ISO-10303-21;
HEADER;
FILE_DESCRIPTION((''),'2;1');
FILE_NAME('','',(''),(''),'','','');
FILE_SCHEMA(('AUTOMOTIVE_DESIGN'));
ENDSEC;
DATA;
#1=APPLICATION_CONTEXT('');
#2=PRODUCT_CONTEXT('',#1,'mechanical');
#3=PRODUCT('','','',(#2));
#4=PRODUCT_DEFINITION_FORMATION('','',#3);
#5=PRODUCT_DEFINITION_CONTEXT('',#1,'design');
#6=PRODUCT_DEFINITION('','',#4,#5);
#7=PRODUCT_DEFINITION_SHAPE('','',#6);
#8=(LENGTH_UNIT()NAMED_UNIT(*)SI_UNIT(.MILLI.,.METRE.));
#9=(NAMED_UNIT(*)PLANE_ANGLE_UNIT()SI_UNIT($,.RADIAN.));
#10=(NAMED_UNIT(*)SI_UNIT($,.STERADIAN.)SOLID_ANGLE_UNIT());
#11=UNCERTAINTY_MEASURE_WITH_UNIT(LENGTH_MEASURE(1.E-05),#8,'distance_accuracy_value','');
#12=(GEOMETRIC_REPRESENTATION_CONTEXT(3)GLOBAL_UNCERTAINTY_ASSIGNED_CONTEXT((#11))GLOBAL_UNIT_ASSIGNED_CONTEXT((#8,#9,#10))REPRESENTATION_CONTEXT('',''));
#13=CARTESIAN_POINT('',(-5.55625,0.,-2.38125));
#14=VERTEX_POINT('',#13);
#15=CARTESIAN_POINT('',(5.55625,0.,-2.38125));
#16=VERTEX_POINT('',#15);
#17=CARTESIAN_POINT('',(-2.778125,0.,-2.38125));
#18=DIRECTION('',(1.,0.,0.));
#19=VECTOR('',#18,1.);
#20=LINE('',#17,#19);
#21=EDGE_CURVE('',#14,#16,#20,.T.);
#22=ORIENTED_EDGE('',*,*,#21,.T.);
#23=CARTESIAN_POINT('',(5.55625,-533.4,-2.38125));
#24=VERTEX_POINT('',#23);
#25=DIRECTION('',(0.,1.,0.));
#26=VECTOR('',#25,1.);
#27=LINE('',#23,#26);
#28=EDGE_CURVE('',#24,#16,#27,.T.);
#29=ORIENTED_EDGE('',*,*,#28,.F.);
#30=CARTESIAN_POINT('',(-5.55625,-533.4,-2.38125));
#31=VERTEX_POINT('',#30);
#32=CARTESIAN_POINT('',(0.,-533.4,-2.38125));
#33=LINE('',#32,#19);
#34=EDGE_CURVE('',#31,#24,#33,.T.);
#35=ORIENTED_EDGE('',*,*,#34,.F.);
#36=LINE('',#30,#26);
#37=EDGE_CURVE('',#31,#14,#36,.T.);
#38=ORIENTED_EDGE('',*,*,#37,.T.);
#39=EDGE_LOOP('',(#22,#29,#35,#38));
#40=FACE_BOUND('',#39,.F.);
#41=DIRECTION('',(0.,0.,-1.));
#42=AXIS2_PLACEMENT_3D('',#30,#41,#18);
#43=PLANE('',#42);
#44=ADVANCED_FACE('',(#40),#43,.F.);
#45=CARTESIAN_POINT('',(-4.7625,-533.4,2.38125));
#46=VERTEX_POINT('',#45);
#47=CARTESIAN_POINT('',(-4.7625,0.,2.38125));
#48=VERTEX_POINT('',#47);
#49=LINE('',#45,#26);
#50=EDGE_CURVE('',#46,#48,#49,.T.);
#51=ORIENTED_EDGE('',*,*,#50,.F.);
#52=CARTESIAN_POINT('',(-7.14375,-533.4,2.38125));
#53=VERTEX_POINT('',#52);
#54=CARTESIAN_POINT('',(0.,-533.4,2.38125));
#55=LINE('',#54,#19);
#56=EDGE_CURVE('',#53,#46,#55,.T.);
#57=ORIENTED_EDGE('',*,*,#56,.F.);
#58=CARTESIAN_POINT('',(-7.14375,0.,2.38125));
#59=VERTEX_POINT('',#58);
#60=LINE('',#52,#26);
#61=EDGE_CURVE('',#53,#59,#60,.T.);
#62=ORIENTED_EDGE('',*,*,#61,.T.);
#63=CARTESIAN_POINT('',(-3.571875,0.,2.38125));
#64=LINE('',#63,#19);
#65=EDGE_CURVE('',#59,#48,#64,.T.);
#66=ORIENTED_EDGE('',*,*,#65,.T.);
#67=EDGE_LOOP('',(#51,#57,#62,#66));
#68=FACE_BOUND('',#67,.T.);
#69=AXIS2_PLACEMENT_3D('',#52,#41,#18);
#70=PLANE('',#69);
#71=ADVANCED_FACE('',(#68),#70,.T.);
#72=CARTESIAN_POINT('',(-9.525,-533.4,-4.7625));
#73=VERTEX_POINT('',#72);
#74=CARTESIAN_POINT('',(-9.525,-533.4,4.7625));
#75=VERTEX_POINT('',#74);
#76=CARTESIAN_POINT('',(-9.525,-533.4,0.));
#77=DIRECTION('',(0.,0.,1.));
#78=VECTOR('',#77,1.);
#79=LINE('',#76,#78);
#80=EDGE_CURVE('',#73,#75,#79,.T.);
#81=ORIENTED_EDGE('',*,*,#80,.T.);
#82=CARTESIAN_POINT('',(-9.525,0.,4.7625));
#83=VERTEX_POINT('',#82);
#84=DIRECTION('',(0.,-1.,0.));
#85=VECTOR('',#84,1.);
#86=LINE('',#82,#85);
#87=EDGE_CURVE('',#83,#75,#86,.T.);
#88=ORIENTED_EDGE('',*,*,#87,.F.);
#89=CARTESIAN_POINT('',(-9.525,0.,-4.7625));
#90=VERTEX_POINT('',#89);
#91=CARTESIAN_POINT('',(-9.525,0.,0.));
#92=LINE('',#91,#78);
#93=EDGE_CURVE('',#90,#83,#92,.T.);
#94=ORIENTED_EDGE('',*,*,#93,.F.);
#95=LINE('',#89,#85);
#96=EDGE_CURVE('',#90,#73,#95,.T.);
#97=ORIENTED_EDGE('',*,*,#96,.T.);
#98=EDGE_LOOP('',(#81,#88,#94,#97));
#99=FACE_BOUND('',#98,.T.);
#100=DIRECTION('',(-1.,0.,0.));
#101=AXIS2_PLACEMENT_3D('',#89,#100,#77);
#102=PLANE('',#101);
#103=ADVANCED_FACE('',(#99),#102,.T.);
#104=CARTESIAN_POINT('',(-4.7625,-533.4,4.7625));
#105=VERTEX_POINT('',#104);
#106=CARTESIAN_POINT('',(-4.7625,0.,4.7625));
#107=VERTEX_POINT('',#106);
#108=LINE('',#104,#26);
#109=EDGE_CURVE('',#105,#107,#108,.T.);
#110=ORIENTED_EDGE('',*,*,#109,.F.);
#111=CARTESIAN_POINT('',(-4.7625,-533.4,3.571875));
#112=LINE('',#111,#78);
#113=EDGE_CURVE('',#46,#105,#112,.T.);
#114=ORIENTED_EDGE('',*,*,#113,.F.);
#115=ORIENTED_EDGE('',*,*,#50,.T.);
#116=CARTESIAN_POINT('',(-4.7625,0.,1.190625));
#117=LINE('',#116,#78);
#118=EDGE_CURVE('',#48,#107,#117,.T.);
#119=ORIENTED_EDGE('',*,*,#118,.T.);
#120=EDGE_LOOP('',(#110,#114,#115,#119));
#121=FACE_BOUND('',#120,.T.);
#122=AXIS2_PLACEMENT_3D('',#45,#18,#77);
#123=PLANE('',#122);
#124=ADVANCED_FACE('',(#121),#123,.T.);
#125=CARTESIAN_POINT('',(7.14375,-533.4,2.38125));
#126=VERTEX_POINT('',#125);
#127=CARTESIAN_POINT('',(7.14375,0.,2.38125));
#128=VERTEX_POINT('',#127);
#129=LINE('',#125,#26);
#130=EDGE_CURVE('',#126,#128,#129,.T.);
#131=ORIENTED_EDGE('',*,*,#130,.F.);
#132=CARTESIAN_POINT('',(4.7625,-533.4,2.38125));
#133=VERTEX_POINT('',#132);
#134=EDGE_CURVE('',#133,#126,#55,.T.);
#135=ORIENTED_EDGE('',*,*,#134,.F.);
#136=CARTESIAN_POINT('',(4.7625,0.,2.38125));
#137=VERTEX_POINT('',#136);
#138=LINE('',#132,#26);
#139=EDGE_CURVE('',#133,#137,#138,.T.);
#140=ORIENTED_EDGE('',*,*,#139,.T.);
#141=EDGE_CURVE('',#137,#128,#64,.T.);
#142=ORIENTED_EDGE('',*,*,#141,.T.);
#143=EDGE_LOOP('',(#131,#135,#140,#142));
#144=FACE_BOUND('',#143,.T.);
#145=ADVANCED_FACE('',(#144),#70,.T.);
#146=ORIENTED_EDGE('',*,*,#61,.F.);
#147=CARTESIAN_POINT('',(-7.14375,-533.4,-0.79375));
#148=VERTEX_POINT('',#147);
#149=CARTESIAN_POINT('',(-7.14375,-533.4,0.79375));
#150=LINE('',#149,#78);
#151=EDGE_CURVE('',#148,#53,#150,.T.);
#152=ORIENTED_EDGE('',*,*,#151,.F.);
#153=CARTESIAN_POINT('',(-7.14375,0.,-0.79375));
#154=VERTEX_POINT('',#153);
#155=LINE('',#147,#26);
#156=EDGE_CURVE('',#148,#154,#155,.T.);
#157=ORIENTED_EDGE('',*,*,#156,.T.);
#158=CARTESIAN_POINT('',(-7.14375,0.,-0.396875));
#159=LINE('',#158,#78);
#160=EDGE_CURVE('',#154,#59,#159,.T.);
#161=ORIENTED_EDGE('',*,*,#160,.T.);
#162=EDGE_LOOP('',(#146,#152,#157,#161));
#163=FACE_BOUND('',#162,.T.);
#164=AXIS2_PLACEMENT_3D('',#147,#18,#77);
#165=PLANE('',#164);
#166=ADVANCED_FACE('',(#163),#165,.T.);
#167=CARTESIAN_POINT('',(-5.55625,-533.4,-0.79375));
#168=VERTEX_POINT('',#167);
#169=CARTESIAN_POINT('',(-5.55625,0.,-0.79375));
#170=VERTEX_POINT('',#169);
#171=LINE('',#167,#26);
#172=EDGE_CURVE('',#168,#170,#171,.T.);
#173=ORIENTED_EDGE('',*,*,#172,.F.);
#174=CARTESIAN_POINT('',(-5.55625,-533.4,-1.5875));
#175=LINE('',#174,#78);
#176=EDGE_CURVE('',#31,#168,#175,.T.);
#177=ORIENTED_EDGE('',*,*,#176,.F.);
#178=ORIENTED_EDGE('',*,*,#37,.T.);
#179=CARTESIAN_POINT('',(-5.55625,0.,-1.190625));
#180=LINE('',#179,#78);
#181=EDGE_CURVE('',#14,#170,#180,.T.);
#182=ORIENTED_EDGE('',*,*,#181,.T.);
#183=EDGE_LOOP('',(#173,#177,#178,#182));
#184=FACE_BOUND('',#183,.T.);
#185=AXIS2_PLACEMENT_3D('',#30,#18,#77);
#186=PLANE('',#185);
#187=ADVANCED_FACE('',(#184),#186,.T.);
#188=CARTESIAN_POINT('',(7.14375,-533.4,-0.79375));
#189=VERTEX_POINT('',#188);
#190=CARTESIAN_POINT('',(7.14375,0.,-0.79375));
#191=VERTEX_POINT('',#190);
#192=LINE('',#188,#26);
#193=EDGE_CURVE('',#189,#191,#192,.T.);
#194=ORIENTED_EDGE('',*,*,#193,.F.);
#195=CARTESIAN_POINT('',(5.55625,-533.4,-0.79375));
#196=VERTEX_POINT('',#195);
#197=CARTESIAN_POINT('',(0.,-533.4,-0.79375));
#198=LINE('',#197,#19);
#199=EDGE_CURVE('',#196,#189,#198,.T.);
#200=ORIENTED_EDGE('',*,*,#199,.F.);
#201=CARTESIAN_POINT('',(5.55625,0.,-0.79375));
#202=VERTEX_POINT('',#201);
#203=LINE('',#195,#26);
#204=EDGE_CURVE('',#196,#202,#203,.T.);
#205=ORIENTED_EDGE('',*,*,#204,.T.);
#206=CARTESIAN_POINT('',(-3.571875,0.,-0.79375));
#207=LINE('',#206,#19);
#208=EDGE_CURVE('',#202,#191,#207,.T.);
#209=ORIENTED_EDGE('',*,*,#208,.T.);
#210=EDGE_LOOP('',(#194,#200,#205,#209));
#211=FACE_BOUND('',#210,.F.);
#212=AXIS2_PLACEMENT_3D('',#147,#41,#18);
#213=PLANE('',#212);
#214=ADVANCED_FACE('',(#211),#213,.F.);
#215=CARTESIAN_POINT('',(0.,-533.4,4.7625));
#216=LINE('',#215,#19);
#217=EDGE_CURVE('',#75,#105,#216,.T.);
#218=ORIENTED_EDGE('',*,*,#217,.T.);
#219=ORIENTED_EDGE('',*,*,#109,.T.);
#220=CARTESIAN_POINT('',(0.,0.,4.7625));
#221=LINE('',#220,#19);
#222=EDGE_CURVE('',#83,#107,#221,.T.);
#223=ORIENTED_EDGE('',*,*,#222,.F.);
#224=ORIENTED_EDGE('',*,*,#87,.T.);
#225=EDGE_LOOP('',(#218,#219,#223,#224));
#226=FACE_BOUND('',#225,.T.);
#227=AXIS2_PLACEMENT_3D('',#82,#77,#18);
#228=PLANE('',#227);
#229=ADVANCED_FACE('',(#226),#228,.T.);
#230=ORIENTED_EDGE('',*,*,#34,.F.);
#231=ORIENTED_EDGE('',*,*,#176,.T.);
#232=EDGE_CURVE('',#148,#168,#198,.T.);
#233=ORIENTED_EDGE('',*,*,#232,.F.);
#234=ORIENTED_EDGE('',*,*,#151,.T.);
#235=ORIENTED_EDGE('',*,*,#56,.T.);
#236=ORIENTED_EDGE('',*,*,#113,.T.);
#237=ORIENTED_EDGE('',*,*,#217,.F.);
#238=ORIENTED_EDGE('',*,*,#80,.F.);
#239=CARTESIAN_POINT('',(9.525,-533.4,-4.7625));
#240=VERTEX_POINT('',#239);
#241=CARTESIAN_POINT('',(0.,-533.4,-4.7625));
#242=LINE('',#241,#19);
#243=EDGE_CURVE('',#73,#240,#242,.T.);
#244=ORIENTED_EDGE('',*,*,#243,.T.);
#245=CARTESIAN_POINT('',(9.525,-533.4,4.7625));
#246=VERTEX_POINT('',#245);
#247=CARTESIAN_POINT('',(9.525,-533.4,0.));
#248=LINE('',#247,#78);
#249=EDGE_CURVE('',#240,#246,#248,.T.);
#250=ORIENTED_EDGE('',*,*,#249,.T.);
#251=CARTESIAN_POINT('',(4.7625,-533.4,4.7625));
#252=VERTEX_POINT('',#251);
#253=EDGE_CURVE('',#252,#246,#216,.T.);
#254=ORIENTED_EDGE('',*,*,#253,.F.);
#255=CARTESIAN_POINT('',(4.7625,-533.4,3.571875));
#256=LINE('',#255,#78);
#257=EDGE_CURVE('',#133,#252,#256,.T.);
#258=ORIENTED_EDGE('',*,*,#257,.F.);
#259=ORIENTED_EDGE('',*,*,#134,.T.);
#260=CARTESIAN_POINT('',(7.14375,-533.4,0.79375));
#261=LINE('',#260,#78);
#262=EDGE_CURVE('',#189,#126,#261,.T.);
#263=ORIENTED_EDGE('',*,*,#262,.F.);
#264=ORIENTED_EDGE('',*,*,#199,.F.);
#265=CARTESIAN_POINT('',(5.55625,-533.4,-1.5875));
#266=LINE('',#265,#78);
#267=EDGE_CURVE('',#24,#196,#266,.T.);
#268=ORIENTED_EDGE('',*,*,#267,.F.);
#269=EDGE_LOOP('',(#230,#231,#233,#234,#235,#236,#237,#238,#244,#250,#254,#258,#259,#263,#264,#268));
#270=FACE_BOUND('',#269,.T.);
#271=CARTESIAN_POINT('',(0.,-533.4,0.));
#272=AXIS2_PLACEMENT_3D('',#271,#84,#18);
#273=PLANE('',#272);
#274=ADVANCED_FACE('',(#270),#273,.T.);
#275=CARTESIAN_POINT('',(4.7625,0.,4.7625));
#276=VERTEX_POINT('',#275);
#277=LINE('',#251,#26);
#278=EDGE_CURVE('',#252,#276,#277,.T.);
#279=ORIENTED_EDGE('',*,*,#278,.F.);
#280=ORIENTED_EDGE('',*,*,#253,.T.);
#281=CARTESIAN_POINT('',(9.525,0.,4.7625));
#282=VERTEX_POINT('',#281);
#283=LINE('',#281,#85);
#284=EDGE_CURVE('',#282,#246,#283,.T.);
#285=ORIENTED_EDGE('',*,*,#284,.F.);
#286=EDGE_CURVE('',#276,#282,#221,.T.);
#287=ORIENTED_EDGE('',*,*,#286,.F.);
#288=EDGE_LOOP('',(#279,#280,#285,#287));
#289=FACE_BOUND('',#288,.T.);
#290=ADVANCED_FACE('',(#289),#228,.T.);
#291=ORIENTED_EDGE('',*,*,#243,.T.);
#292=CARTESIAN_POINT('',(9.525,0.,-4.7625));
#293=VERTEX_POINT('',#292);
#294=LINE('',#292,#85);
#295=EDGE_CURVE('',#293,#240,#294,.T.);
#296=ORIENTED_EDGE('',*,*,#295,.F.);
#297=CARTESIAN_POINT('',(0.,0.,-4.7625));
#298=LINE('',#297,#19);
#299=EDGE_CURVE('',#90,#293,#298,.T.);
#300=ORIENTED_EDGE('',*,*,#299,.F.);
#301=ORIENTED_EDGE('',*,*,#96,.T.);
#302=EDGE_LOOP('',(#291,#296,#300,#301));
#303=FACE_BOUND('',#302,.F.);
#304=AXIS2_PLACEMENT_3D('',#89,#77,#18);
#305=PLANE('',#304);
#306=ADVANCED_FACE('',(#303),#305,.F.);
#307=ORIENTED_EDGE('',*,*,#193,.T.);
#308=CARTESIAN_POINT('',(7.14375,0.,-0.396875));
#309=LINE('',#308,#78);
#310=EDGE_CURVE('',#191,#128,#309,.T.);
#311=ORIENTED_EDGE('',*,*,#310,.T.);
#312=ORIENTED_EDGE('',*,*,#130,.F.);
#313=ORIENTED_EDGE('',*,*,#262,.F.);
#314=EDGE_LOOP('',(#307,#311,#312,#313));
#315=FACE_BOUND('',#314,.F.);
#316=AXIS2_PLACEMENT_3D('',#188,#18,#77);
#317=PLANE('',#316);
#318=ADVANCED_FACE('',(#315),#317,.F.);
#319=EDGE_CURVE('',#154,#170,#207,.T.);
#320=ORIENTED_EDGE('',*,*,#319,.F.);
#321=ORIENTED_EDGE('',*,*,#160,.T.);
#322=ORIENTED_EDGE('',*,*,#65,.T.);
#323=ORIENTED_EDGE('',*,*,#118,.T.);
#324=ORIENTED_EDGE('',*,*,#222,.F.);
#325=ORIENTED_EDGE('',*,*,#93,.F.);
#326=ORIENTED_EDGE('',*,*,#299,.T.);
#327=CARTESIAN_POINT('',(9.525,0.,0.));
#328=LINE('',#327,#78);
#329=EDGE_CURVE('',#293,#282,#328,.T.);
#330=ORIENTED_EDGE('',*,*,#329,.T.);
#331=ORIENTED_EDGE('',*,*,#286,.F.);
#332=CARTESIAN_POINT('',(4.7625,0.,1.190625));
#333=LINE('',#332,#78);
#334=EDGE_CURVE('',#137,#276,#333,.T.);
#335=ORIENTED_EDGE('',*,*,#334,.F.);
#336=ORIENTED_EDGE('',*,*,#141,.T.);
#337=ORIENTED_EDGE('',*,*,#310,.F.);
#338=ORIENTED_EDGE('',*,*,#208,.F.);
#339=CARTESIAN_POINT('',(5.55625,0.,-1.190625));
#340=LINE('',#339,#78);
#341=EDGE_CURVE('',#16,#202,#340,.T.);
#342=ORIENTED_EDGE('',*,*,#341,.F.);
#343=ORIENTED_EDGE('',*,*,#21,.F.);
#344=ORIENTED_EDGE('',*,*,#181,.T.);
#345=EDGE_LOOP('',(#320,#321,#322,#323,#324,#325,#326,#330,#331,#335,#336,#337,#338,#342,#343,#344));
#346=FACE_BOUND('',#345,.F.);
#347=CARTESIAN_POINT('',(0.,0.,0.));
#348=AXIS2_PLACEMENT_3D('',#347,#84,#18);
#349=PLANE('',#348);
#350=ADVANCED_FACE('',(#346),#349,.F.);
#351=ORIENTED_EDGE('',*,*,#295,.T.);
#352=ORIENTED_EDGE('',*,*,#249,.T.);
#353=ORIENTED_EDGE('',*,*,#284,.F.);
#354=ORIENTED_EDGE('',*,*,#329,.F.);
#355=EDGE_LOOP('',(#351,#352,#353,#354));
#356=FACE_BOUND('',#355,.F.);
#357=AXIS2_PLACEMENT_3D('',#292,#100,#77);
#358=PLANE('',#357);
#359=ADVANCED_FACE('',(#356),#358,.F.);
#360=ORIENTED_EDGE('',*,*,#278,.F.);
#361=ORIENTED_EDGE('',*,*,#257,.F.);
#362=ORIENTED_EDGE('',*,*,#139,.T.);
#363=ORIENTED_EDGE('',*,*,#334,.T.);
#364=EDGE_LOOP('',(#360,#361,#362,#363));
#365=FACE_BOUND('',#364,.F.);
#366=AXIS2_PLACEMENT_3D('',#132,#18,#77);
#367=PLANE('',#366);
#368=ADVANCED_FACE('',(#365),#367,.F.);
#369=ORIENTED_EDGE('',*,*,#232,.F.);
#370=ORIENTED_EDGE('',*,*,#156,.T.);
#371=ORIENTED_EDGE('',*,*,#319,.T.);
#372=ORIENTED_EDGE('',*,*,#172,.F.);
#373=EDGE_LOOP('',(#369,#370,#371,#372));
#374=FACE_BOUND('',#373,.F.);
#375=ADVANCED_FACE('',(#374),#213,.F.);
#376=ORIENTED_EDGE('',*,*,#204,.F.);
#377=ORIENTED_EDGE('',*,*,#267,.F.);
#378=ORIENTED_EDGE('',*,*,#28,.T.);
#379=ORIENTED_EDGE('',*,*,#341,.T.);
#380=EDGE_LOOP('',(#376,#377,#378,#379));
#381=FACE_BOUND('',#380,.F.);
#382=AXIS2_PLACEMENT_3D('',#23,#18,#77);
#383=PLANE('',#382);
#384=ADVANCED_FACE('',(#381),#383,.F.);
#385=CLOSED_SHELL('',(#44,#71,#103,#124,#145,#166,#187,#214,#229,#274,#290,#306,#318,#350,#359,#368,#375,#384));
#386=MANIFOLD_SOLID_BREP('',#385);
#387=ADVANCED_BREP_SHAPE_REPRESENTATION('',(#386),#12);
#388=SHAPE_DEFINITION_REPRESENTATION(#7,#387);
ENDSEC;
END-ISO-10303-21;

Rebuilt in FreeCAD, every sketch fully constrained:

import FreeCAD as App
import Part
import Sketcher

V = App.Vector
Q = App.Units.Quantity

doc = App.newDocument("Part")
body = doc.addObject("PartDesign::Body", "Body")

# Sketch on XZ plane
sketch1 = body.newObject("Sketcher::SketchObject", "Sketch")
sketch1.AttachmentSupport = (doc.getObject("XZ_Plane"), [""])
sketch1.MapMode = "FlatFace"
sketch1.addGeometry([
    Part.LineSegment(V(-10, 5, 0), V(-10, -5, 0)),
    Part.LineSegment(V(-10, -5, 0), V(10, -5, 0)),
    Part.LineSegment(V(10, -5, 0), V(10, 5, 0)),
    Part.LineSegment(V(10, 5, 0), V(-10, 5, 0)),
], False)
sketch1.addConstraint([
    Sketcher.Constraint("Coincident", 0, 2, 1, 1),
    Sketcher.Constraint("Coincident", 1, 2, 2, 1),
    Sketcher.Constraint("Coincident", 2, 2, 3, 1),
    Sketcher.Constraint("Coincident", 3, 2, 0, 1),
    Sketcher.Constraint("Vertical", 0),
    Sketcher.Constraint("Horizontal", 1),
    Sketcher.Constraint("Vertical", 2),
    Sketcher.Constraint("Horizontal", 3),
    Sketcher.Constraint("Symmetric", 0, 2, 2, 2, -1, 1),
    Sketcher.Constraint("DistanceX", 1, 1, 1, 2, Q("0.75 in")),
    Sketcher.Constraint("DistanceY", 0, 2, 0, 1, Q("0.375 in")),
])
pad1 = body.newObject("PartDesign::Pad", "Pad")
pad1.Profile = sketch1
pad1.Length = Q("21 in")

# Sketch on XZ plane
sketch2 = body.newObject("Sketcher::SketchObject", "Sketch001")
sketch2.AttachmentSupport = (doc.getObject("XZ_Plane"), [""])
sketch2.MapMode = "FlatFace"
sketch2.AttachmentOffset = App.Placement(V(0, 0, 21 * 25.4), App.Rotation())
sketch2.addGeometry([
    Part.LineSegment(V(-4.8, 4.8, 0), V(-4.8, 2.4, 0)),
    Part.LineSegment(V(-4.8, 2.4, 0), V(4.8, 2.4, 0)),
    Part.LineSegment(V(4.8, 2.4, 0), V(4.8, 4.8, 0)),
    Part.LineSegment(V(4.8, 4.8, 0), V(-4.8, 4.8, 0)),
], False)
sketch2.addConstraint([
    Sketcher.Constraint("Coincident", 0, 2, 1, 1),
    Sketcher.Constraint("Coincident", 1, 2, 2, 1),
    Sketcher.Constraint("Coincident", 2, 2, 3, 1),
    Sketcher.Constraint("Coincident", 3, 2, 0, 1),
    Sketcher.Constraint("Vertical", 0),
    Sketcher.Constraint("Horizontal", 1),
    Sketcher.Constraint("Vertical", 2),
    Sketcher.Constraint("Horizontal", 3),
    Sketcher.Constraint("DistanceX", 1, 1, 1, 2, Q("0.375 in")),
    Sketcher.Constraint("DistanceY", 0, 2, 0, 1, Q("0.09375 in")),
    Sketcher.Constraint("DistanceX", 0, 2, -1, 1, Q("0.1875 in")),
    Sketcher.Constraint("DistanceY", -1, 1, 0, 2, Q("0.09375 in")),
])
pocket1 = body.newObject("PartDesign::Pocket", "Pocket")
pocket1.Profile = sketch2
pocket1.Type = "ThroughAll"

# Sketch on XZ plane
sketch3 = body.newObject("Sketcher::SketchObject", "Sketch002")
sketch3.AttachmentSupport = (doc.getObject("XZ_Plane"), [""])
sketch3.MapMode = "FlatFace"
sketch3.AttachmentOffset = App.Placement(V(0, 0, 21 * 25.4), App.Rotation())
sketch3.addGeometry([
    Part.LineSegment(V(-7.1, 2.4, 0), V(-7.1, -0.8, 0)),
    Part.LineSegment(V(-7.1, -0.8, 0), V(7.1, -0.8, 0)),
    Part.LineSegment(V(7.1, -0.8, 0), V(7.1, 2.4, 0)),
    Part.LineSegment(V(7.1, 2.4, 0), V(-7.1, 2.4, 0)),
], False)
sketch3.addConstraint([
    Sketcher.Constraint("Coincident", 0, 2, 1, 1),
    Sketcher.Constraint("Coincident", 1, 2, 2, 1),
    Sketcher.Constraint("Coincident", 2, 2, 3, 1),
    Sketcher.Constraint("Coincident", 3, 2, 0, 1),
    Sketcher.Constraint("Vertical", 0),
    Sketcher.Constraint("Horizontal", 1),
    Sketcher.Constraint("Vertical", 2),
    Sketcher.Constraint("Horizontal", 3),
    Sketcher.Constraint("DistanceX", 1, 1, 1, 2, Q("0.5625 in")),
    Sketcher.Constraint("DistanceY", 0, 2, 0, 1, Q("0.125 in")),
    Sketcher.Constraint("DistanceX", 0, 2, -1, 1, Q("0.28125 in")),
    Sketcher.Constraint("DistanceY", 0, 2, -1, 1, Q("0.03125 in")),
])
pocket2 = body.newObject("PartDesign::Pocket", "Pocket001")
pocket2.Profile = sketch3
pocket2.Type = "ThroughAll"

# Sketch on XZ plane
sketch4 = body.newObject("Sketcher::SketchObject", "Sketch003")
sketch4.AttachmentSupport = (doc.getObject("XZ_Plane"), [""])
sketch4.MapMode = "FlatFace"
sketch4.AttachmentOffset = App.Placement(V(0, 0, 21 * 25.4), App.Rotation())
sketch4.addGeometry([
    Part.LineSegment(V(-5.6, -0.8, 0), V(-5.6, -2.4, 0)),
    Part.LineSegment(V(-5.6, -2.4, 0), V(5.6, -2.4, 0)),
    Part.LineSegment(V(5.6, -2.4, 0), V(5.6, -0.8, 0)),
    Part.LineSegment(V(5.6, -0.8, 0), V(-5.6, -0.8, 0)),
], False)
sketch4.addConstraint([
    Sketcher.Constraint("Coincident", 0, 2, 1, 1),
    Sketcher.Constraint("Coincident", 1, 2, 2, 1),
    Sketcher.Constraint("Coincident", 2, 2, 3, 1),
    Sketcher.Constraint("Coincident", 3, 2, 0, 1),
    Sketcher.Constraint("Vertical", 0),
    Sketcher.Constraint("Horizontal", 1),
    Sketcher.Constraint("Vertical", 2),
    Sketcher.Constraint("Horizontal", 3),
    Sketcher.Constraint("DistanceX", 1, 1, 1, 2, Q("0.4375 in")),
    Sketcher.Constraint("DistanceY", 0, 2, 0, 1, Q("0.0625 in")),
    Sketcher.Constraint("DistanceX", 0, 2, -1, 1, Q("0.21875 in")),
    Sketcher.Constraint("DistanceY", 0, 2, -1, 1, Q("0.09375 in")),
])
pocket3 = body.newObject("PartDesign::Pocket", "Pocket002")
pocket3.Profile = sketch4
pocket3.Type = "ThroughAll"

doc.recompute()
